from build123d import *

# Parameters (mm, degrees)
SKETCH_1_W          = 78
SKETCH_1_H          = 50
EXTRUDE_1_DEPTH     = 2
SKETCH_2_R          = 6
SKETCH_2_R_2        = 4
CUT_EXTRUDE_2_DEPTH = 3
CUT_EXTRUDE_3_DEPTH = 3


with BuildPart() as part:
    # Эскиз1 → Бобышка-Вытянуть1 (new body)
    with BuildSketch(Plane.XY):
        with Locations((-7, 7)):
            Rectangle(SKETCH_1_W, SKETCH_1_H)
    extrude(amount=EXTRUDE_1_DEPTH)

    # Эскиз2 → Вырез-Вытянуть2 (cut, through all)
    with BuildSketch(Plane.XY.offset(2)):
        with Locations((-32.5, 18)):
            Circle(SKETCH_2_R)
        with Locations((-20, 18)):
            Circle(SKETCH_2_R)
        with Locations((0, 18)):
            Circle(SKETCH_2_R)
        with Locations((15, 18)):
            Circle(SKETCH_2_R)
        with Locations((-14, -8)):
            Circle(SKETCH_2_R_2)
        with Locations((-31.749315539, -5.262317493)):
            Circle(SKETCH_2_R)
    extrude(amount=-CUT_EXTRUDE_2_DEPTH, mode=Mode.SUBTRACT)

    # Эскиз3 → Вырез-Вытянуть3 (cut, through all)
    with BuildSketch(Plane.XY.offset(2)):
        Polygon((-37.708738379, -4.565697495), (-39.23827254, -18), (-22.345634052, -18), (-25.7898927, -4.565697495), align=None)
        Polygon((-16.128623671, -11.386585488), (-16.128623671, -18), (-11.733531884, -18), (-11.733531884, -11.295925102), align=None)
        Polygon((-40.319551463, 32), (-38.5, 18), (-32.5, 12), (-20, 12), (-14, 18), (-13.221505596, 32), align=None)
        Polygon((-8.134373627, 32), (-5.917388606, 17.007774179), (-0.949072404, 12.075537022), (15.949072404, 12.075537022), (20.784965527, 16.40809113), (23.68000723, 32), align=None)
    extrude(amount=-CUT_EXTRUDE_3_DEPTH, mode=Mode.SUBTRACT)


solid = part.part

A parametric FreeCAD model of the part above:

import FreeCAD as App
import Part
import Sketcher

V = App.Vector
Q = App.Units.Quantity

doc = App.newDocument("Part")
body = doc.addObject("PartDesign::Body", "Body")

# Sketch on XY plane
sketch1 = doc.addObject("Sketcher::SketchObject", "Sketch")
body.addObject(sketch1)
sketch1.AttachmentSupport = (doc.XY_Plane, [""])
sketch1.MapMode = "FlatFace"
sketch1.addGeometry([
    Part.LineSegment(V(-46, 32, 0), V(-46, -18, 0)),
    Part.LineSegment(V(-46, -18, 0), V(32, -18, 0)),
    Part.LineSegment(V(32, -18, 0), V(32, 32, 0)),
    Part.LineSegment(V(32, 32, 0), V(-46, 32, 0)),
], False)
sketch1.addConstraint([
    Sketcher.Constraint("Coincident", 0, 2, 1, 1),
    Sketcher.Constraint("Coincident", 1, 2, 2, 1),
    Sketcher.Constraint("Coincident", 2, 2, 3, 1),
    Sketcher.Constraint("Coincident", 3, 2, 0, 1),
    Sketcher.Constraint("Vertical", 0),
    Sketcher.Constraint("Horizontal", 1),
    Sketcher.Constraint("Vertical", 2),
    Sketcher.Constraint("Horizontal", 3),
    Sketcher.Constraint("DistanceX", 1, 1, 1, 2, Q("78 mm")),
    Sketcher.Constraint("DistanceY", 0, 2, 0, 1, Q("50 mm")),
    Sketcher.Constraint("DistanceX", 0, 2, -1, 1, Q("46 mm")),
    Sketcher.Constraint("DistanceY", 0, 2, -1, 1, Q("18 mm")),
])
pad1 = doc.addObject("PartDesign::Pad", "Pad")
body.addObject(pad1)
pad1.Profile = sketch1
pad1.Length = 2

# Sketch on XY plane
sketch2 = doc.addObject("Sketcher::SketchObject", "Sketch001")
body.addObject(sketch2)
sketch2.AttachmentSupport = (doc.XY_Plane, [""])
sketch2.MapMode = "FlatFace"
sketch2.AttachmentOffset = App.Placement(V(0, 0, 2), App.Rotation())
sketch2.addGeometry([
    Part.Circle(V(-32.5, 18, 0), V(0, 0, 1), 6),  # 0
    Part.Circle(V(-20, 18, 0), V(0, 0, 1), 6),  # 1
    Part.Circle(V(0, 18, 0), V(0, 0, 1), 6),  # 2
    Part.Circle(V(15, 18, 0), V(0, 0, 1), 6),  # 3
    Part.Circle(V(-14, -8, 0), V(0, 0, 1), 4),  # 4
    Part.Circle(V(-31.7, -5.3, 0), V(0, 0, 1), 6),  # 5
], False)
sketch2.addConstraint([
    Sketcher.Constraint("Equal", 0, 1),
    Sketcher.Constraint("Equal", 1, 2),
    Sketcher.Constraint("Equal", 2, 3),
    Sketcher.Constraint("Equal", 3, 5),
    Sketcher.Constraint("PointOnObject", 2, 3, -2),
    Sketcher.Constraint("Horizontal", 0, 3, 1, 3),
    Sketcher.Constraint("Horizontal", 1, 3, 2, 3),
    Sketcher.Constraint("Horizontal", 2, 3, 3, 3),
    Sketcher.Constraint("Diameter", 0, Q("12 mm")),
    Sketcher.Constraint("Diameter", 4, Q("8 mm")),
    Sketcher.Constraint("DistanceY", -1, 1, 0, 3, Q("18 mm")),
    Sketcher.Constraint("DistanceX", 1, 3, -1, 1, Q("20 mm")),
    Sketcher.Constraint("DistanceX", -1, 1, 3, 3, Q("15 mm")),
    Sketcher.Constraint("DistanceX", 4, 3, -1, 1, Q("14 mm")),
    Sketcher.Constraint("DistanceY", 4, 3, -1, 1, Q("8 mm")),
    Sketcher.Constraint("DistanceX", 0, 3, -1, 1, Q("32.5 mm")),
    Sketcher.Constraint("DistanceX", 5, 3, -1, 1, Q("31.749316 mm")),
    Sketcher.Constraint("DistanceY", 5, 3, -1, 1, Q("5.262317 mm")),
])
pocket1 = doc.addObject("PartDesign::Pocket", "Pocket")
body.addObject(pocket1)
pocket1.Profile = sketch2
pocket1.Type = "ThroughAll"

# Sketch on XY plane
sketch3 = doc.addObject("Sketcher::SketchObject", "Sketch002")
body.addObject(sketch3)
sketch3.AttachmentSupport = (doc.XY_Plane, [""])
sketch3.MapMode = "FlatFace"
sketch3.AttachmentOffset = App.Placement(V(0, 0, 2), App.Rotation())
sketch3.addGeometry([
    Part.LineSegment(V(-37.7, -4.6, 0), V(-39.2, -18, 0)),  # 0
    Part.LineSegment(V(-39.2, -18, 0), V(-22.3, -18, 0)),  # 1
    Part.LineSegment(V(-22.3, -18, 0), V(-25.8, -4.6, 0)),  # 2
    Part.LineSegment(V(-25.8, -4.6, 0), V(-37.7, -4.6, 0)),  # 3
    Part.LineSegment(V(-16.1, -11.4, 0), V(-16.1, -18, 0)),  # 4
    Part.LineSegment(V(-16.1, -18, 0), V(-11.7, -18, 0)),  # 5
    Part.LineSegment(V(-11.7, -18, 0), V(-11.7, -11.3, 0)),  # 6
    Part.LineSegment(V(-11.7, -11.3, 0), V(-16.1, -11.4, 0)),  # 7
    Part.LineSegment(V(-40.3, 32, 0), V(-38.5, 18, 0)),  # 8
    Part.LineSegment(V(-38.5, 18, 0), V(-32.5, 12, 0)),  # 9
    Part.LineSegment(V(-32.5, 12, 0), V(-20, 12, 0)),  # 10
    Part.LineSegment(V(-20, 12, 0), V(-14, 18, 0)),  # 11
    Part.LineSegment(V(-14, 18, 0), V(-13.2, 32, 0)),  # 12
    Part.LineSegment(V(-13.2, 32, 0), V(-40.3, 32, 0)),  # 13
    Part.LineSegment(V(-8.1, 32, 0), V(-5.9, 17, 0)),  # 14
    Part.LineSegment(V(-5.9, 17, 0), V(-0.9, 12.1, 0)),  # 15
    Part.LineSegment(V(-0.9, 12.1, 0), V(15.9, 12.1, 0)),  # 16
    Part.LineSegment(V(15.9, 12.1, 0), V(20.8, 16.4, 0)),  # 17
    Part.LineSegment(V(20.8, 16.4, 0), V(23.7, 32, 0)),  # 18
    Part.LineSegment(V(23.7, 32, 0), V(-8.1, 32, 0)),  # 19
], False)
sketch3.addConstraint([
    Sketcher.Constraint("Coincident", 0, 2, 1, 1),
    Sketcher.Constraint("Coincident", 1, 2, 2, 1),
    Sketcher.Constraint("Coincident", 2, 2, 3, 1),
    Sketcher.Constraint("Coincident", 3, 2, 0, 1),
    Sketcher.Constraint("Coincident", 4, 2, 5, 1),
    Sketcher.Constraint("Coincident", 5, 2, 6, 1),
    Sketcher.Constraint("Coincident", 6, 2, 7, 1),
    Sketcher.Constraint("Coincident", 7, 2, 4, 1),
    Sketcher.Constraint("Coincident", 8, 2, 9, 1),
    Sketcher.Constraint("Coincident", 9, 2, 10, 1),
    Sketcher.Constraint("Coincident", 10, 2, 11, 1),
    Sketcher.Constraint("Coincident", 11, 2, 12, 1),
    Sketcher.Constraint("Coincident", 12, 2, 13, 1),
    Sketcher.Constraint("Coincident", 13, 2, 8, 1),
    Sketcher.Constraint("Coincident", 14, 2, 15, 1),
    Sketcher.Constraint("Coincident", 15, 2, 16, 1),
    Sketcher.Constraint("Coincident", 16, 2, 17, 1),
    Sketcher.Constraint("Coincident", 17, 2, 18, 1),
    Sketcher.Constraint("Coincident", 18, 2, 19, 1),
    Sketcher.Constraint("Coincident", 19, 2, 14, 1),
    Sketcher.Constraint("Horizontal", 1),
    Sketcher.Constraint("Horizontal", 3),
    Sketcher.Constraint("Vertical", 4),
    Sketcher.Constraint("Horizontal", 5),
    Sketcher.Constraint("Vertical", 6),
    Sketcher.Constraint("Horizontal", 10),
    Sketcher.Constraint("Horizontal", 13),
    Sketcher.Constraint("Horizontal", 16),
    Sketcher.Constraint("Horizontal", 19),
    Sketcher.Constraint("Perpendicular", 9, 11),
    Sketcher.Constraint("Horizontal", 1, 2, 4, 2),
    Sketcher.Constraint("Horizontal", 8, 2, 11, 2),
    Sketcher.Constraint("Horizontal", 13, 2, 18, 2),
    Sketcher.Constraint("Equal", 9, 11),
    Sketcher.Constraint("DistanceX", 10, 1, 10, 2, Q("12.5 mm")),
    Sketcher.Constraint("DistanceY", 0, 2, -1, 1, Q("18 mm")),
    Sketcher.Constraint("DistanceY", -1, 1, 8, 2, Q("18 mm")),
    Sketcher.Constraint("DistanceY", -1, 1, 9, 2, Q("12 mm")),
    Sketcher.Constraint("DistanceX", 10, 2, -1, 1, Q("20 mm")),
    Sketcher.Constraint("DistanceY", -1, 1, 12, 2, Q("32 mm")),
    Sketcher.Constraint("Distance", 18, Q("15.858401 mm")),
    Sketcher.Constraint("DistanceX", 1, 1, 1, 2, Q("16.892638 mm")),
    Sketcher.Constraint("DistanceX", 5, 1, 5, 2, Q("4.395092 mm")),
    Sketcher.Constraint("DistanceX", 19, 2, 19, 1, Q("31.814381 mm")),
    Sketcher.Constraint("DistanceY", 6, 2, 14, 2, Q("28.303699 mm")),
    Sketcher.Constraint("DistanceX", 19, 2, 15, 2, Q("7.185301 mm")),
    Sketcher.Constraint("Distance", 12, Q("14.021628 mm")),
    Sketcher.Constraint("Distance", 14, Q("15.155258 mm")),
    Sketcher.Constraint("DistanceX", 3, 2, 3, 1, Q("11.918846 mm")),
    Sketcher.Constraint("DistanceX", 13, 2, 13, 1, Q("27.098046 mm")),
    Sketcher.Constraint("DistanceX", 16, 1, 16, 2, Q("16.898145 mm")),
    Sketcher.Constraint("DistanceY", 4, 2, 4, 1, Q("6.613415 mm")),
    Sketcher.Constraint("DistanceY", 6, 1, 6, 2, Q("6.704075 mm")),
    Sketcher.Constraint("DistanceX", 3, 2, -1, 1, Q("37.708738 mm")),
    Sketcher.Constraint("DistanceX", 5, 2, -1, 1, Q("11.733532 mm")),
    Sketcher.Constraint("DistanceX", 14, 2, -1, 1, Q("5.917389 mm")),
    Sketcher.Constraint("DistanceY", -1, 1, 17, 2, Q("16.408091 mm")),
    Sketcher.Constraint("DistanceX", 2, 2, 1, 2, Q("3.444259 mm")),
    Sketcher.Constraint("Distance", 0, Q("13.521093 mm")),
    Sketcher.Constraint("Distance", 15, Q("7.000795 mm")),
])
pocket2 = doc.addObject("PartDesign::Pocket", "Pocket001")
body.addObject(pocket2)
pocket2.Profile = sketch3
pocket2.Type = "ThroughAll"

doc.recompute()
